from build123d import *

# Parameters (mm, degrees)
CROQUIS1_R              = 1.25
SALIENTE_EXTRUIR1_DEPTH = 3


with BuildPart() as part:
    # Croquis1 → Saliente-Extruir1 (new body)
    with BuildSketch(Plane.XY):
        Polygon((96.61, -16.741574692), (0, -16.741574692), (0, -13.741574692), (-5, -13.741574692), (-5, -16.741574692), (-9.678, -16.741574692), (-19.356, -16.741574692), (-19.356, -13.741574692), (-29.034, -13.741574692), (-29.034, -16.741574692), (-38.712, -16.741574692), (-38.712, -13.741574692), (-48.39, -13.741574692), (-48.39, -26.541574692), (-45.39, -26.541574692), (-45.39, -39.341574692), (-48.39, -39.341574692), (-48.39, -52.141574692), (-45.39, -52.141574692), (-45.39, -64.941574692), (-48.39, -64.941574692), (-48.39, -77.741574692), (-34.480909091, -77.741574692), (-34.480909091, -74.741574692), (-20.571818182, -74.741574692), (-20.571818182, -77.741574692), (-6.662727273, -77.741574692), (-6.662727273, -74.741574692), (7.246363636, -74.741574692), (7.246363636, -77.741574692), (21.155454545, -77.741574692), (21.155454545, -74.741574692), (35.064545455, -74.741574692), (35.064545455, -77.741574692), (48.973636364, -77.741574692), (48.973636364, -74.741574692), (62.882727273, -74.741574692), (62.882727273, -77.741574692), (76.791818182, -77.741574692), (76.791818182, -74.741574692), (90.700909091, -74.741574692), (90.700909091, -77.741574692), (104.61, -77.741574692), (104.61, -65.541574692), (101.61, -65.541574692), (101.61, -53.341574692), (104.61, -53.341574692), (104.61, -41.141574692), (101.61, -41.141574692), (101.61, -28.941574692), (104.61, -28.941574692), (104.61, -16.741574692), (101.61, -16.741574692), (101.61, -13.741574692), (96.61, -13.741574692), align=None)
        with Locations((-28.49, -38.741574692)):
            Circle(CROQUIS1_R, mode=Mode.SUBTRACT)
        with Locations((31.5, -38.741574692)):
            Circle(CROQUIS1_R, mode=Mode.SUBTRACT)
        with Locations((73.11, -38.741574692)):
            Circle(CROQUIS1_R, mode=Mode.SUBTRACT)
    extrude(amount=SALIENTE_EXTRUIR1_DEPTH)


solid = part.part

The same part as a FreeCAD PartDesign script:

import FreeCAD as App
import Part
import Sketcher

doc = App.newDocument("Part")
params = doc.addObject("Spreadsheet::Sheet", "Params")
for row, (alias, value) in enumerate([
    ("sketch1_diameter", "2.5 mm"),
    ("sketch1_width", "5 mm"),
    ("sketch1_width2", "3 mm"),
    ("sketch1_height", "12.8 mm"),
    ("sketch1_width3", "96.61 mm"),
    ("pad1_length", "3 mm"),
], start=1):
    params.set(f"A{row}", alias)
    params.set(f"B{row}", "=" + value)
    params.setAlias(f"B{row}", alias)

body = doc.addObject("PartDesign::Body", "Body")

sketch1 = body.newObject("Sketcher::SketchObject", "Sketch")
sketch1.AttachmentSupport = (doc.getObject("XY_Plane"), [""])
sketch1.MapMode = "FlatFace"
sketch1.addGeometry(Part.LineSegment(App.Vector(96.6, -16.7, 0), App.Vector(0, -16.7, 0)), False)
sketch1.addGeometry(Part.LineSegment(App.Vector(0, -16.7, 0), App.Vector(0, -13.7, 0)), False)
sketch1.addGeometry(Part.LineSegment(App.Vector(0, -13.7, 0), App.Vector(-5, -13.7, 0)), False)
sketch1.addGeometry(Part.LineSegment(App.Vector(-5, -13.7, 0), App.Vector(-5, -16.7, 0)), False)
sketch1.addGeometry(Part.LineSegment(App.Vector(-5, -16.7, 0), App.Vector(-19.4, -16.7, 0)), False)
sketch1.addGeometry(Part.LineSegment(App.Vector(-19.4, -16.7, 0), App.Vector(-19.4, -13.7, 0)), False)
sketch1.addGeometry(Part.LineSegment(App.Vector(-19.4, -13.7, 0), App.Vector(-29, -13.7, 0)), False)
sketch1.addGeometry(Part.LineSegment(App.Vector(-29, -13.7, 0), App.Vector(-29, -16.7, 0)), False)
sketch1.addGeometry(Part.LineSegment(App.Vector(-29, -16.7, 0), App.Vector(-38.7, -16.7, 0)), False)
sketch1.addGeometry(Part.LineSegment(App.Vector(-38.7, -16.7, 0), App.Vector(-38.7, -13.7, 0)), False)
sketch1.addGeometry(Part.LineSegment(App.Vector(-38.7, -13.7, 0), App.Vector(-48.4, -13.7, 0)), False)
sketch1.addGeometry(Part.LineSegment(App.Vector(-48.4, -13.7, 0), App.Vector(-48.4, -26.5, 0)), False)
sketch1.addGeometry(Part.LineSegment(App.Vector(-48.4, -26.5, 0), App.Vector(-45.4, -26.5, 0)), False)
sketch1.addGeometry(Part.LineSegment(App.Vector(-45.4, -26.5, 0), App.Vector(-45.4, -39.3, 0)), False)
sketch1.addGeometry(Part.LineSegment(App.Vector(-45.4, -39.3, 0), App.Vector(-48.4, -39.3, 0)), False)
sketch1.addGeometry(Part.LineSegment(App.Vector(-48.4, -39.3, 0), App.Vector(-48.4, -52.1, 0)), False)
sketch1.addGeometry(Part.LineSegment(App.Vector(-48.4, -52.1, 0), App.Vector(-45.4, -52.1, 0)), False)
sketch1.addGeometry(Part.LineSegment(App.Vector(-45.4, -52.1, 0), App.Vector(-45.4, -64.9, 0)), False)
sketch1.addGeometry(Part.LineSegment(App.Vector(-45.4, -64.9, 0), App.Vector(-48.4, -64.9, 0)), False)
sketch1.addGeometry(Part.LineSegment(App.Vector(-48.4, -64.9, 0), App.Vector(-48.4, -77.7, 0)), False)
sketch1.addGeometry(Part.LineSegment(App.Vector(-48.4, -77.7, 0), App.Vector(-34.5, -77.7, 0)), False)
sketch1.addGeometry(Part.LineSegment(App.Vector(-34.5, -77.7, 0), App.Vector(-34.5, -74.7, 0)), False)
sketch1.addGeometry(Part.LineSegment(App.Vector(-34.5, -74.7, 0), App.Vector(-20.6, -74.7, 0)), False)
sketch1.addGeometry(Part.LineSegment(App.Vector(-20.6, -74.7, 0), App.Vector(-20.6, -77.7, 0)), False)
sketch1.addGeometry(Part.LineSegment(App.Vector(-20.6, -77.7, 0), App.Vector(-6.7, -77.7, 0)), False)
sketch1.addGeometry(Part.LineSegment(App.Vector(-6.7, -77.7, 0), App.Vector(-6.7, -74.7, 0)), False)
sketch1.addGeometry(Part.LineSegment(App.Vector(-6.7, -74.7, 0), App.Vector(7.2, -74.7, 0)), False)
sketch1.addGeometry(Part.LineSegment(App.Vector(7.2, -74.7, 0), App.Vector(7.2, -77.7, 0)), False)
sketch1.addGeometry(Part.LineSegment(App.Vector(7.2, -77.7, 0), App.Vector(21.2, -77.7, 0)), False)
sketch1.addGeometry(Part.LineSegment(App.Vector(21.2, -77.7, 0), App.Vector(21.2, -74.7, 0)), False)
sketch1.addGeometry(Part.LineSegment(App.Vector(21.2, -74.7, 0), App.Vector(35.1, -74.7, 0)), False)
sketch1.addGeometry(Part.LineSegment(App.Vector(35.1, -74.7, 0), App.Vector(35.1, -77.7, 0)), False)
sketch1.addGeometry(Part.LineSegment(App.Vector(35.1, -77.7, 0), App.Vector(49, -77.7, 0)), False)
sketch1.addGeometry(Part.LineSegment(App.Vector(49, -77.7, 0), App.Vector(49, -74.7, 0)), False)
sketch1.addGeometry(Part.LineSegment(App.Vector(49, -74.7, 0), App.Vector(62.9, -74.7, 0)), False)
sketch1.addGeometry(Part.LineSegment(App.Vector(62.9, -74.7, 0), App.Vector(62.9, -77.7, 0)), False)
sketch1.addGeometry(Part.LineSegment(App.Vector(62.9, -77.7, 0), App.Vector(76.8, -77.7, 0)), False)
sketch1.addGeometry(Part.LineSegment(App.Vector(76.8, -77.7, 0), App.Vector(76.8, -74.7, 0)), False)
sketch1.addGeometry(Part.LineSegment(App.Vector(76.8, -74.7, 0), App.Vector(90.7, -74.7, 0)), False)
sketch1.addGeometry(Part.LineSegment(App.Vector(90.7, -74.7, 0), App.Vector(90.7, -77.7, 0)), False)
sketch1.addGeometry(Part.LineSegment(App.Vector(90.7, -77.7, 0), App.Vector(104.6, -77.7, 0)), False)
sketch1.addGeometry(Part.LineSegment(App.Vector(104.6, -77.7, 0), App.Vector(104.6, -65.5, 0)), False)
sketch1.addGeometry(Part.LineSegment(App.Vector(104.6, -65.5, 0), App.Vector(101.6, -65.5, 0)), False)
sketch1.addGeometry(Part.LineSegment(App.Vector(101.6, -65.5, 0), App.Vector(101.6, -53.3, 0)), False)
sketch1.addGeometry(Part.LineSegment(App.Vector(101.6, -53.3, 0), App.Vector(104.6, -53.3, 0)), False)
sketch1.addGeometry(Part.LineSegment(App.Vector(104.6, -53.3, 0), App.Vector(104.6, -41.1, 0)), False)
sketch1.addGeometry(Part.LineSegment(App.Vector(104.6, -41.1, 0), App.Vector(101.6, -41.1, 0)), False)
sketch1.addGeometry(Part.LineSegment(App.Vector(101.6, -41.1, 0), App.Vector(101.6, -28.9, 0)), False)
sketch1.addGeometry(Part.LineSegment(App.Vector(101.6, -28.9, 0), App.Vector(104.6, -28.9, 0)), False)
sketch1.addGeometry(Part.LineSegment(App.Vector(104.6, -28.9, 0), App.Vector(104.6, -16.7, 0)), False)
sketch1.addGeometry(Part.LineSegment(App.Vector(104.6, -16.7, 0), App.Vector(101.6, -16.7, 0)), False)
sketch1.addGeometry(Part.LineSegment(App.Vector(101.6, -16.7, 0), App.Vector(101.6, -13.7, 0)), False)
sketch1.addGeometry(Part.LineSegment(App.Vector(101.6, -13.7, 0), App.Vector(96.6, -13.7, 0)), False)
sketch1.addGeometry(Part.LineSegment(App.Vector(96.6, -13.7, 0), App.Vector(96.6, -16.7, 0)), False)
sketch1.addGeometry(Part.Circle(App.Vector(-28.5, -38.7, 0), App.Vector(0, 0, 1), 1.2), False)
sketch1.addGeometry(Part.Circle(App.Vector(31.5, -38.7, 0), App.Vector(0, 0, 1), 1.2), False)
sketch1.addGeometry(Part.Circle(App.Vector(73.1, -38.7, 0), App.Vector(0, 0, 1), 1.2), False)
sketch1.addConstraint(Sketcher.Constraint("Coincident", 0, 2, 1, 1))
sketch1.addConstraint(Sketcher.Constraint("Coincident", 1, 2, 2, 1))
sketch1.addConstraint(Sketcher.Constraint("Coincident", 2, 2, 3, 1))
sketch1.addConstraint(Sketcher.Constraint("Coincident", 3, 2, 4, 1))
sketch1.addConstraint(Sketcher.Constraint("Coincident", 4, 2, 5, 1))
sketch1.addConstraint(Sketcher.Constraint("Coincident", 5, 2, 6, 1))
sketch1.addConstraint(Sketcher.Constraint("Coincident", 6, 2, 7, 1))
sketch1.addConstraint(Sketcher.Constraint("Coincident", 7, 2, 8, 1))
sketch1.addConstraint(Sketcher.Constraint("Coincident", 8, 2, 9, 1))
sketch1.addConstraint(Sketcher.Constraint("Coincident", 9, 2, 10, 1))
sketch1.addConstraint(Sketcher.Constraint("Coincident", 10, 2, 11, 1))
sketch1.addConstraint(Sketcher.Constraint("Coincident", 11, 2, 12, 1))
sketch1.addConstraint(Sketcher.Constraint("Coincident", 12, 2, 13, 1))
sketch1.addConstraint(Sketcher.Constraint("Coincident", 13, 2, 14, 1))
sketch1.addConstraint(Sketcher.Constraint("Coincident", 14, 2, 15, 1))
sketch1.addConstraint(Sketcher.Constraint("Coincident", 15, 2, 16, 1))
sketch1.addConstraint(Sketcher.Constraint("Coincident", 16, 2, 17, 1))
sketch1.addConstraint(Sketcher.Constraint("Coincident", 17, 2, 18, 1))
sketch1.addConstraint(Sketcher.Constraint("Coincident", 18, 2, 19, 1))
sketch1.addConstraint(Sketcher.Constraint("Coincident", 19, 2, 20, 1))
sketch1.addConstraint(Sketcher.Constraint("Coincident", 20, 2, 21, 1))
sketch1.addConstraint(Sketcher.Constraint("Coincident", 21, 2, 22, 1))
sketch1.addConstraint(Sketcher.Constraint("Coincident", 22, 2, 23, 1))
sketch1.addConstraint(Sketcher.Constraint("Coincident", 23, 2, 24, 1))
sketch1.addConstraint(Sketcher.Constraint("Coincident", 24, 2, 25, 1))
sketch1.addConstraint(Sketcher.Constraint("Coincident", 25, 2, 26, 1))
sketch1.addConstraint(Sketcher.Constraint("Coincident", 26, 2, 27, 1))
sketch1.addConstraint(Sketcher.Constraint("Coincident", 27, 2, 28, 1))
sketch1.addConstraint(Sketcher.Constraint("Coincident", 28, 2, 29, 1))
sketch1.addConstraint(Sketcher.Constraint("Coincident", 29, 2, 30, 1))
sketch1.addConstraint(Sketcher.Constraint("Coincident", 30, 2, 31, 1))
sketch1.addConstraint(Sketcher.Constraint("Coincident", 31, 2, 32, 1))
sketch1.addConstraint(Sketcher.Constraint("Coincident", 32, 2, 33, 1))
sketch1.addConstraint(Sketcher.Constraint("Coincident", 33, 2, 34, 1))
sketch1.addConstraint(Sketcher.Constraint("Coincident", 34, 2, 35, 1))
sketch1.addConstraint(Sketcher.Constraint("Coincident", 35, 2, 36, 1))
sketch1.addConstraint(Sketcher.Constraint("Coincident", 36, 2, 37, 1))
sketch1.addConstraint(Sketcher.Constraint("Coincident", 37, 2, 38, 1))
sketch1.addConstraint(Sketcher.Constraint("Coincident", 38, 2, 39, 1))
sketch1.addConstraint(Sketcher.Constraint("Coincident", 39, 2, 40, 1))
sketch1.addConstraint(Sketcher.Constraint("Coincident", 40, 2, 41, 1))
sketch1.addConstraint(Sketcher.Constraint("Coincident", 41, 2, 42, 1))
sketch1.addConstraint(Sketcher.Constraint("Coincident", 42, 2, 43, 1))
sketch1.addConstraint(Sketcher.Constraint("Coincident", 43, 2, 44, 1))
sketch1.addConstraint(Sketcher.Constraint("Coincident", 44, 2, 45, 1))
sketch1.addConstraint(Sketcher.Constraint("Coincident", 45, 2, 46, 1))
sketch1.addConstraint(Sketcher.Constraint("Coincident", 46, 2, 47, 1))
sketch1.addConstraint(Sketcher.Constraint("Coincident", 47, 2, 48, 1))
sketch1.addConstraint(Sketcher.Constraint("Coincident", 48, 2, 49, 1))
sketch1.addConstraint(Sketcher.Constraint("Coincident", 49, 2, 50, 1))
sketch1.addConstraint(Sketcher.Constraint("Coincident", 50, 2, 51, 1))
sketch1.addConstraint(Sketcher.Constraint("Coincident", 51, 2, 52, 1))
sketch1.addConstraint(Sketcher.Constraint("Coincident", 52, 2, 53, 1))
sketch1.addConstraint(Sketcher.Constraint("Coincident", 53, 2, 0, 1))
sketch1.addConstraint(Sketcher.Constraint("Horizontal", 0))
sketch1.addConstraint(Sketcher.Constraint("Vertical", 1))
sketch1.addConstraint(Sketcher.Constraint("Horizontal", 2))
sketch1.addConstraint(Sketcher.Constraint("Vertical", 3))
sketch1.addConstraint(Sketcher.Constraint("Horizontal", 4))
sketch1.addConstraint(Sketcher.Constraint("Vertical", 5))
sketch1.addConstraint(Sketcher.Constraint("Horizontal", 6))
sketch1.addConstraint(Sketcher.Constraint("Vertical", 7))
sketch1.addConstraint(Sketcher.Constraint("Horizontal", 8))
sketch1.addConstraint(Sketcher.Constraint("Vertical", 9))
sketch1.addConstraint(Sketcher.Constraint("Horizontal", 10))
sketch1.addConstraint(Sketcher.Constraint("Vertical", 11))
sketch1.addConstraint(Sketcher.Constraint("Horizontal", 12))
sketch1.addConstraint(Sketcher.Constraint("Vertical", 13))
sketch1.addConstraint(Sketcher.Constraint("Horizontal", 14))
sketch1.addConstraint(Sketcher.Constraint("Vertical", 15))
sketch1.addConstraint(Sketcher.Constraint("Horizontal", 16))
sketch1.addConstraint(Sketcher.Constraint("Vertical", 17))
sketch1.addConstraint(Sketcher.Constraint("Horizontal", 18))
sketch1.addConstraint(Sketcher.Constraint("Vertical", 19))
sketch1.addConstraint(Sketcher.Constraint("Horizontal", 20))
sketch1.addConstraint(Sketcher.Constraint("Vertical", 21))
sketch1.addConstraint(Sketcher.Constraint("Horizontal", 22))
sketch1.addConstraint(Sketcher.Constraint("Vertical", 23))
sketch1.addConstraint(Sketcher.Constraint("Horizontal", 24))
sketch1.addConstraint(Sketcher.Constraint("Vertical", 25))
sketch1.addConstraint(Sketcher.Constraint("Horizontal", 26))
sketch1.addConstraint(Sketcher.Constraint("Vertical", 27))
sketch1.addConstraint(Sketcher.Constraint("Horizontal", 28))
sketch1.addConstraint(Sketcher.Constraint("Vertical", 29))
sketch1.addConstraint(Sketcher.Constraint("Horizontal", 30))
sketch1.addConstraint(Sketcher.Constraint("Vertical", 31))
sketch1.addConstraint(Sketcher.Constraint("Horizontal", 32))
sketch1.addConstraint(Sketcher.Constraint("Vertical", 33))
sketch1.addConstraint(Sketcher.Constraint("Horizontal", 34))
sketch1.addConstraint(Sketcher.Constraint("Vertical", 35))
sketch1.addConstraint(Sketcher.Constraint("Horizontal", 36))
sketch1.addConstraint(Sketcher.Constraint("Vertical", 37))
sketch1.addConstraint(Sketcher.Constraint("Horizontal", 38))
sketch1.addConstraint(Sketcher.Constraint("Vertical", 39))
sketch1.addConstraint(Sketcher.Constraint("Horizontal", 40))
sketch1.addConstraint(Sketcher.Constraint("Vertical", 41))
sketch1.addConstraint(Sketcher.Constraint("Horizontal", 42))
sketch1.addConstraint(Sketcher.Constraint("Vertical", 43))
sketch1.addConstraint(Sketcher.Constraint("Horizontal", 44))
sketch1.addConstraint(Sketcher.Constraint("Vertical", 45))
sketch1.addConstraint(Sketcher.Constraint("Horizontal", 46))
sketch1.addConstraint(Sketcher.Constraint("Vertical", 47))
sketch1.addConstraint(Sketcher.Constraint("Horizontal", 48))
sketch1.addConstraint(Sketcher.Constraint("Vertical", 49))
sketch1.addConstraint(Sketcher.Constraint("Horizontal", 50))
sketch1.addConstraint(Sketcher.Constraint("Vertical", 51))
sketch1.addConstraint(Sketcher.Constraint("Horizontal", 52))
sketch1.addConstraint(Sketcher.Constraint("Vertical", 53))
sketch1.addConstraint(Sketcher.Constraint("Equal", 54, 55))
sketch1.addConstraint(Sketcher.Constraint("Equal", 55, 56))
sketch1.addConstraint(Sketcher.Constraint("PointOnObject", 0, 2, -2))
sketch1.addConstraint(Sketcher.Constraint("Horizontal", 54, 3, 55, 3))
sketch1.addConstraint(Sketcher.Constraint("Horizontal", 55, 3, 56, 3))
sketch1.addConstraint(Sketcher.Constraint("Horizontal", 0, 2, 3, 2))
sketch1.addConstraint(Sketcher.Constraint("Horizontal", 2, 2, 5, 2))
sketch1.addConstraint(Sketcher.Constraint("Horizontal", 4, 2, 7, 2))
sketch1.addConstraint(Sketcher.Constraint("Horizontal", 6, 2, 9, 2))
sketch1.addConstraint(Sketcher.Constraint("Horizontal", 20, 2, 23, 2))
sketch1.addConstraint(Sketcher.Constraint("Horizontal", 22, 2, 25, 2))
sketch1.addConstraint(Sketcher.Constraint("Horizontal", 24, 2, 27, 2))
sketch1.addConstraint(Sketcher.Constraint("Horizontal", 26, 2, 29, 2))
sketch1.addConstraint(Sketcher.Constraint("Horizontal", 28, 2, 31, 2))
sketch1.addConstraint(Sketcher.Constraint("Horizontal", 30, 2, 33, 2))
sketch1.addConstraint(Sketcher.Constraint("Horizontal", 32, 2, 35, 2))
sketch1.addConstraint(Sketcher.Constraint("Horizontal", 34, 2, 37, 2))
sketch1.addConstraint(Sketcher.Constraint("Horizontal", 36, 2, 39, 2))
sketch1.addConstraint(Sketcher.Constraint("Horizontal", 8, 2, 49, 2))
sketch1.addConstraint(Sketcher.Constraint("Horizontal", 10, 2, 51, 2))
sketch1.addConstraint(Sketcher.Constraint("Vertical", 11, 2, 14, 2))
sketch1.addConstraint(Sketcher.Constraint("Vertical", 13, 2, 16, 2))
sketch1.addConstraint(Sketcher.Constraint("Vertical", 15, 2, 18, 2))
sketch1.addConstraint(Sketcher.Constraint("Vertical", 41, 2, 44, 2))
sketch1.addConstraint(Sketcher.Constraint("Vertical", 43, 2, 46, 2))
sketch1.addConstraint(Sketcher.Constraint("Vertical", 45, 2, 48, 2))
sketch1.addConstraint(Sketcher.Constraint("Vertical", 47, 2, 50, 2))
sketch1.addConstraint(Sketcher.Constraint("Equal", 6, 8))
sketch1.addConstraint(Sketcher.Constraint("Equal", 8, 10))
sketch1.addConstraint(Sketcher.Constraint("Equal", 20, 22))
sketch1.addConstraint(Sketcher.Constraint("Equal", 22, 24))
sketch1.addConstraint(Sketcher.Constraint("Equal", 24, 26))
sketch1.addConstraint(Sketcher.Constraint("Equal", 26, 28))
sketch1.addConstraint(Sketcher.Constraint("Equal", 28, 30))
sketch1.addConstraint(Sketcher.Constraint("Equal", 30, 32))
sketch1.addConstraint(Sketcher.Constraint("Equal", 32, 34))
sketch1.addConstraint(Sketcher.Constraint("Equal", 34, 36))
sketch1.addConstraint(Sketcher.Constraint("Equal", 36, 38))
sketch1.addConstraint(Sketcher.Constraint("Equal", 38, 40))
sketch1.addConstraint(Sketcher.Constraint("Equal", 18, 42))
sketch1.addConstraint(Sketcher.Constraint("Equal", 2, 52))
sketch1.addConstraint(Sketcher.Constraint("Equal", 50, 1))
sketch1.addConstraint(Sketcher.Constraint("Equal", 11, 13))
sketch1.addConstraint(Sketcher.Constraint("Equal", 13, 15))
sketch1.addConstraint(Sketcher.Constraint("Equal", 15, 17))
sketch1.addConstraint(Sketcher.Constraint("Equal", 17, 19))
sketch1.addConstraint(Sketcher.Constraint("Equal", 9, 21))
sketch1.addConstraint(Sketcher.Constraint("Equal", 41, 43))
sketch1.addConstraint(Sketcher.Constraint("Equal", 43, 45))
sketch1.addConstraint(Sketcher.Constraint("Equal", 45, 47))
sketch1.addConstraint(Sketcher.Constraint("Equal", 47, 49))
sketch1.addConstraint(Sketcher.Constraint("Diameter", 54, 2.5))
sketch1.addConstraint(Sketcher.Constraint("DistanceX", 2, 2, 2, 1, 5.0))
sketch1.addConstraint(Sketcher.Constraint("DistanceX", 12, 1, 12, 2, 3.0))
sketch1.addConstraint(Sketcher.Constraint("DistanceY", 11, 2, 11, 1, 12.8))
sketch1.addConstraint(Sketcher.Constraint("DistanceY", 54, 3, 0, 2, 22.0))
sketch1.addConstraint(Sketcher.Constraint("DistanceX", 0, 2, 0, 1, 96.61))
sketch1.addConstraint(Sketcher.Constraint("DistanceX", -1, 1, 55, 3, 31.5))
sketch1.addConstraint(Sketcher.Constraint("DistanceX", 54, 3, 56, 3, 101.6))
sketch1.addConstraint(Sketcher.Constraint("DistanceX", 13, 2, 54, 3, 16.9))
sketch1.addConstraint(Sketcher.Constraint("DistanceX", 56, 3, 45, 2, 31.5))
sketch1.addConstraint(Sketcher.Constraint("DistanceX", 4, 2, 4, 1, 14.356))
sketch1.addConstraint(Sketcher.Constraint("DistanceY", 54, 3, -1, 1, 38.741575))
sketch1.setExpression("Constraints[159]", "Params.sketch1_diameter")
sketch1.setExpression("Constraints[160]", "Params.sketch1_width")
sketch1.setExpression("Constraints[161]", "Params.sketch1_width2")
sketch1.setExpression("Constraints[162]", "Params.sketch1_height")
sketch1.setExpression("Constraints[164]", "Params.sketch1_width3")
pad1 = body.newObject("PartDesign::Pad", "Pad")
pad1.Profile = sketch1
pad1.setExpression("Length", "Params.pad1_length")

doc.recompute()
